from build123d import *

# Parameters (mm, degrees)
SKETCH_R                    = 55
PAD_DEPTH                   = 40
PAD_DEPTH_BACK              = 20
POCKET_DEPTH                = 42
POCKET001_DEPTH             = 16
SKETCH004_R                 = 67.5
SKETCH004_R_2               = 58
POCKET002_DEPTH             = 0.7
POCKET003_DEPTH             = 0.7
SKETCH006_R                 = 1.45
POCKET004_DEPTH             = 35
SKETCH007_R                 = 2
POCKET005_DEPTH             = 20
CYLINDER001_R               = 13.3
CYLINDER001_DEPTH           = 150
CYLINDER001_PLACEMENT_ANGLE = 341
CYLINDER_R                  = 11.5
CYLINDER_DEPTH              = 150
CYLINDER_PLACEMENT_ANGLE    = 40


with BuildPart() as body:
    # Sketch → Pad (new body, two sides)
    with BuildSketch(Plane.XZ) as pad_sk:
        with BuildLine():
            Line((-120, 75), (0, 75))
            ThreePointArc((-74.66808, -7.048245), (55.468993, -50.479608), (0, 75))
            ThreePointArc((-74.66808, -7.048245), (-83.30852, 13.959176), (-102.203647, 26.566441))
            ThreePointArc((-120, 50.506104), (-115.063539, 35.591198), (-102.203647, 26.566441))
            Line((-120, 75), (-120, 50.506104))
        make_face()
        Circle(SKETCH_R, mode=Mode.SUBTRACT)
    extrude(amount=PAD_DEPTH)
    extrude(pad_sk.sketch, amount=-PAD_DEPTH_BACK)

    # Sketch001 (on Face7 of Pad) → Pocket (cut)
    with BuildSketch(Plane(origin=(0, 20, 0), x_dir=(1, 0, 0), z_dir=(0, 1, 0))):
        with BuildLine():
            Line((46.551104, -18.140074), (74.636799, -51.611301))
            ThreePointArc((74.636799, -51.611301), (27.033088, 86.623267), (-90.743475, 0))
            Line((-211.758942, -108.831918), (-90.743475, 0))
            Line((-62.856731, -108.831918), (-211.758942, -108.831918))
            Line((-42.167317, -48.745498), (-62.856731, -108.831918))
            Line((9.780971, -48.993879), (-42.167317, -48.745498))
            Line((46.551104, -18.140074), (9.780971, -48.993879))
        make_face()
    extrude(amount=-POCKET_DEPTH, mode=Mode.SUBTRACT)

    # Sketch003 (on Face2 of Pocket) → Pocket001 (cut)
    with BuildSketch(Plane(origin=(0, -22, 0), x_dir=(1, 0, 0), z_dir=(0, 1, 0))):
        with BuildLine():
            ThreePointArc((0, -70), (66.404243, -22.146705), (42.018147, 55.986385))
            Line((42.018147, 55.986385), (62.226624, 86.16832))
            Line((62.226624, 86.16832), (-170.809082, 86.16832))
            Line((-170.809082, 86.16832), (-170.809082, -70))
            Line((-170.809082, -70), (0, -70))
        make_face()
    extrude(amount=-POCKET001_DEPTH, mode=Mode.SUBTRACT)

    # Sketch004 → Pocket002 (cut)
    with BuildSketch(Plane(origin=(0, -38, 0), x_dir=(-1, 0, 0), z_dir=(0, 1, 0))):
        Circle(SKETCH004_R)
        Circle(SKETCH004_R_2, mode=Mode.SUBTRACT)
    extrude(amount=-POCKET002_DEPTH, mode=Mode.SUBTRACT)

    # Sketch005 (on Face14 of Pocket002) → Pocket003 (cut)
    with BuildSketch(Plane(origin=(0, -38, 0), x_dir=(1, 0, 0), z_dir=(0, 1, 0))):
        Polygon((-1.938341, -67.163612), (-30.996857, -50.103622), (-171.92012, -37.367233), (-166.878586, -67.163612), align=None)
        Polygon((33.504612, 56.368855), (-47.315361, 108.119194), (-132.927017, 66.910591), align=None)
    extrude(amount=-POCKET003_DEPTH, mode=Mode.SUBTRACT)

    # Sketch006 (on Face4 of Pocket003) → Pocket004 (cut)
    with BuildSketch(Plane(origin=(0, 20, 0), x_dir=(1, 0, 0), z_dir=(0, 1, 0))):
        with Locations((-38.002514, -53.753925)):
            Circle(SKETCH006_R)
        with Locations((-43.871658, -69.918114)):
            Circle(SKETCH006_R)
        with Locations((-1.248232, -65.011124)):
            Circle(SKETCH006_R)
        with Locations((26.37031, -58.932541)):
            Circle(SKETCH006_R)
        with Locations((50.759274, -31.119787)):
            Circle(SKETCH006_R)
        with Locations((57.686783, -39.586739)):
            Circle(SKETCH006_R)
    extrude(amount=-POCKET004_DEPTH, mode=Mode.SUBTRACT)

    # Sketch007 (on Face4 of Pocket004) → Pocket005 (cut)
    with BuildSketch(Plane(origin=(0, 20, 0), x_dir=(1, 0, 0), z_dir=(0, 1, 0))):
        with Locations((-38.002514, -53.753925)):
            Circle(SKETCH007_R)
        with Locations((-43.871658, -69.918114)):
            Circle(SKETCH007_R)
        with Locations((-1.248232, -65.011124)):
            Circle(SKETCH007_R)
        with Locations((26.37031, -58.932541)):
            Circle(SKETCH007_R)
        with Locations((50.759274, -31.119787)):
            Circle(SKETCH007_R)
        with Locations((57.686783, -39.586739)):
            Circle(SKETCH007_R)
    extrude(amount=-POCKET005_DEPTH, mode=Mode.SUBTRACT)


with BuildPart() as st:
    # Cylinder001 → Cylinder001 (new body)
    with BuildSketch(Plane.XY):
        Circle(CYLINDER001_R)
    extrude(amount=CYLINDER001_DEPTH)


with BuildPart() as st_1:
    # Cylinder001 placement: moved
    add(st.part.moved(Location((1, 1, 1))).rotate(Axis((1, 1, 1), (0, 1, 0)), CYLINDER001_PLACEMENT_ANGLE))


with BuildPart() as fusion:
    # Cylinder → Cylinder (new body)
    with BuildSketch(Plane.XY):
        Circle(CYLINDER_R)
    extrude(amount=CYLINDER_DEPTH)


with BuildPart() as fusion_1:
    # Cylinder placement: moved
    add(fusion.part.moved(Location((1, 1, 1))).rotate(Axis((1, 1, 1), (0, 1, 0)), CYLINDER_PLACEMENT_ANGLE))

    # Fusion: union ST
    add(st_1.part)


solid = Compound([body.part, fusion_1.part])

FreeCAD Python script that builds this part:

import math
import FreeCAD as App
import Part
import Sketcher
Q = App.Units.Quantity


def add_polygon(sketch, points):
    """Adds a closed chain of lines whose ends are joined by coincident constraints."""
    first, n = sketch.GeometryCount, len(points)
    for a, b in zip(points, points[1:] + points[:1]):
        sketch.addGeometry(Part.LineSegment(App.Vector(*a, 0), App.Vector(*b, 0)), False)
    for i in range(n):
        sketch.addConstraint(Sketcher.Constraint("Coincident", first + i, 2, first + (i + 1) % n, 1))

doc = App.newDocument("Part")
params = doc.addObject("Spreadsheet::Sheet", "Params")
for row, (alias, value) in enumerate([
    ("sketch1_diameter", "110 mm"),
    ("sketch1_radius", "24.999998 mm"),
    ("sketch1_radius2", "75 mm"),
    ("sketch1_width", "120 mm"),
    ("pad1_length", "40 mm"),
    ("pad1_length2", "20 mm"),
    ("sketch2_length", "48 mm"),
    ("pocket1_length", "42 mm"),
    ("sketch3_radius", "70 mm"),
    ("pocket2_length", "16 mm"),
    ("sketch4_diameter", "135 mm"),
    ("sketch4_diameter2", "116 mm"),
    ("pocket3_length", "0.7 mm"),
    ("pocket4_length", "0.7 mm"),
    ("sketch6_diameter", "2.9 mm"),
    ("pocket5_length", "35 mm"),
    ("sketch7_diameter", "4 mm"),
    ("pocket6_length", "20 mm"),
    ("sketch8_diameter", "26.6 mm"),
    ("pad2_length", "150 mm"),
    ("sketch9_diameter", "23 mm"),
    ("pad3_length", "150 mm"),
], start=1):
    params.set(f"A{row}", alias)
    params.set(f"B{row}", "=" + value)
    params.setAlias(f"B{row}", alias)

body = doc.addObject("PartDesign::Body", "Body")

sketch1 = body.newObject("Sketcher::SketchObject", "Sketch")
sketch1.AttachmentSupport = (doc.getObject("XZ_Plane"), [""])
sketch1.MapMode = "FlatFace"
sketch1.addGeometry([
    Part.LineSegment(App.Vector(0, 75, 0), App.Vector(-120, 75, 0)),
    Part.LineSegment(App.Vector(-120, 75, 0), App.Vector(-120, 51, 0)),
    Part.ArcOfCircle(Part.Circle(App.Vector(-95, 51, 0), App.Vector(0, 0, 1), 25), math.radians(180), math.radians(253)),
    Part.ArcOfCircle(Part.Circle(App.Vector(-113, -11, 0), App.Vector(0, 0, 1), 39), math.radians(5), math.radians(73)),
    Part.ArcOfCircle(Part.Circle(App.Vector(0, 0, 0), App.Vector(0, 0, 1), 75), math.radians(-175), math.radians(90)),
    Part.Circle(App.Vector(0, 0, 0), App.Vector(0, 0, 1), 55),
], False)
sketch1.addConstraint([
    Sketcher.Constraint("Coincident", 0, 2, 1, 1),
    Sketcher.Constraint("Tangent", 1, 2, 2, 1),
    Sketcher.Constraint("Tangent", 2, 2, 3, 2),
    Sketcher.Constraint("Tangent", 3, 1, 4, 1),
    Sketcher.Constraint("Tangent", 4, 2, 0, 1),
    Sketcher.Constraint("Horizontal", 0),
    Sketcher.Constraint("Vertical", 1),
    Sketcher.Constraint("Coincident", 4, 3, -1, 1),
    Sketcher.Constraint("Coincident", 5, 3, -1, 1),
    Sketcher.Constraint("Diameter", 5, 110.0),
    Sketcher.Constraint("Radius", 2, 24.999998),
    Sketcher.Constraint("Radius", 4, 75.0),
    Sketcher.Constraint("DistanceX", 0, 2, 0, 1, 120.0),
    Sketcher.Constraint("Radius", 3, 38.923461),
    Sketcher.Constraint("DistanceX", 3, 3, 3, 1, 38.751202),
])
sketch1.setExpression("Constraints[9]", "Params.sketch1_diameter")
sketch1.setExpression("Constraints[10]", "Params.sketch1_radius")
sketch1.setExpression("Constraints[11]", "Params.sketch1_radius2")
sketch1.setExpression("Constraints[12]", "Params.sketch1_width")
pad1 = body.newObject("PartDesign::Pad", "Pad")
pad1.Profile = sketch1
pad1.Type = "TwoLengths"
pad1.setExpression("Length", "Params.pad1_length")
pad1.setExpression("Length2", "Params.pad1_length2")

sketch2 = body.newObject("Sketcher::SketchObject", "Sketch001")
sketch2.AttachmentSupport = (doc.getObject("XZ_Plane"), [""])
sketch2.MapMode = "FlatFace"
sketch2.AttachmentOffset = App.Placement(App.Vector(0, 0, -20), App.Rotation())
sketch2.addGeometry([
    Part.LineSegment(App.Vector(47, 18, 0), App.Vector(75, 52, 0)),
    Part.ArcOfCircle(Part.Circle(App.Vector(0, 0, 0), App.Vector(0, 0, 1), 91), math.radians(180), math.radians(395)),
    Part.LineSegment(App.Vector(-91, 0, 0), App.Vector(-212, 109, 0)),
    Part.LineSegment(App.Vector(-212, 109, 0), App.Vector(-63, 109, 0)),
    Part.LineSegment(App.Vector(-63, 109, 0), App.Vector(-42, 49, 0)),
    Part.LineSegment(App.Vector(-42, 49, 0), App.Vector(10, 49, 0)),
    Part.LineSegment(App.Vector(10, 49, 0), App.Vector(47, 18, 0)),
], False)
sketch2.addConstraint([
    Sketcher.Constraint("Coincident", 0, 2, 1, 2),
    Sketcher.Constraint("Coincident", 1, 1, 2, 1),
    Sketcher.Constraint("Coincident", 2, 2, 3, 1),
    Sketcher.Constraint("Coincident", 3, 2, 4, 1),
    Sketcher.Constraint("Coincident", 4, 2, 5, 1),
    Sketcher.Constraint("Coincident", 5, 2, 6, 1),
    Sketcher.Constraint("Coincident", 6, 2, 0, 1),
    Sketcher.Constraint("Horizontal", 3),
    Sketcher.Constraint("Coincident", 1, 3, -1, 1),
    Sketcher.Constraint("PointOnObject", 1, 1, -1),
    Sketcher.Constraint("Perpendicular", 0, 6),
    Sketcher.Constraint("Angle", 0, Q("49.999999 deg")),
    Sketcher.Constraint("Angle", 4, Q("-71 deg")),
    Sketcher.Constraint("Distance", 6, 48.0),
    Sketcher.Constraint("Radius", 1, 90.743475),
    Sketcher.Constraint("DistanceX", 3, 1, 3, 2, 148.902211),
    Sketcher.Constraint("DistanceX", -1, 1, 0, 2, 74.636799),
    Sketcher.Constraint("DistanceY", 1, 3, 4, 2, 48.745498),
    Sketcher.Constraint("Distance", 4, 63.548641),
    Sketcher.Constraint("Distance", 5, 51.948882),
    Sketcher.Constraint("DistanceX", 2, 2, -1, 1, 211.758942),
])
sketch2.setExpression("Constraints[13]", "Params.sketch2_length")
pocket1 = body.newObject("PartDesign::Pocket", "Pocket")
pocket1.Profile = sketch2
pocket1.setExpression("Length", "Params.pocket1_length")
pocket1.Reversed = True

sketch3 = body.newObject("Sketcher::SketchObject", "Sketch002")
sketch3.AttachmentSupport = (doc.getObject("XZ_Plane"), [""])
sketch3.MapMode = "FlatFace"
sketch3.AttachmentOffset = App.Placement(App.Vector(0, 0, 22), App.Rotation())
sketch3.addGeometry([
    Part.ArcOfCircle(Part.Circle(App.Vector(0, 0, 0), App.Vector(0, 0, 1), 70), math.radians(-53), math.radians(90)),
    Part.LineSegment(App.Vector(42, -56, 0), App.Vector(62, -86, 0)),
    Part.LineSegment(App.Vector(62, -86, 0), App.Vector(-171, -86, 0)),
    Part.LineSegment(App.Vector(-171, -86, 0), App.Vector(-171, 70, 0)),
    Part.LineSegment(App.Vector(-171, 70, 0), App.Vector(0, 70, 0)),
], False)
sketch3.addConstraint([
    Sketcher.Constraint("Coincident", 0, 1, 1, 1),
    Sketcher.Constraint("Coincident", 1, 2, 2, 1),
    Sketcher.Constraint("Coincident", 2, 2, 3, 1),
    Sketcher.Constraint("Coincident", 3, 2, 4, 1),
    Sketcher.Constraint("Tangent", 4, 2, 0, 2),
    Sketcher.Constraint("Horizontal", 2),
    Sketcher.Constraint("Vertical", 3),
    Sketcher.Constraint("Horizontal", 4),
    Sketcher.Constraint("Coincident", 0, 3, -1, 1),
    Sketcher.Constraint("Radius", 0, 70.0),
    Sketcher.Constraint("DistanceX", 4, 1, 4, 2, 170.809082),
    Sketcher.Constraint("DistanceY", 3, 1, 3, 2, 156.16832),
    Sketcher.Constraint("DistanceX", 2, 2, 2, 1, 233.035706),
    Sketcher.Constraint("DistanceX", 2, 2, 0, 1, 212.827229),
])
sketch3.setExpression("Constraints[9]", "Params.sketch3_radius")
pocket2 = body.newObject("PartDesign::Pocket", "Pocket001")
pocket2.Profile = sketch3
pocket2.setExpression("Length", "Params.pocket2_length")
pocket2.Reversed = True

sketch4 = body.newObject("Sketcher::SketchObject", "Sketch003")
sketch4.AttachmentSupport = (doc.getObject("XZ_Plane"), [""])
sketch4.MapMode = "FlatFace"
sketch4.AttachmentOffset = App.Placement(App.Vector(0, 0, 38), App.Rotation())
sketch4.addGeometry([
    Part.Circle(App.Vector(0, 0, 0), App.Vector(0, 0, 1), 68),
    Part.Circle(App.Vector(0, 0, 0), App.Vector(0, 0, 1), 58),
], False)
sketch4.addConstraint([
    Sketcher.Constraint("Coincident", 0, 3, -1, 1),
    Sketcher.Constraint("Coincident", 1, 3, -1, 1),
    Sketcher.Constraint("Diameter", 0, 135.0),
    Sketcher.Constraint("Diameter", 1, 116.0),
])
sketch4.setExpression("Constraints[2]", "Params.sketch4_diameter")
sketch4.setExpression("Constraints[3]", "Params.sketch4_diameter2")
pocket3 = body.newObject("PartDesign::Pocket", "Pocket002")
pocket3.Profile = sketch4
pocket3.setExpression("Length", "Params.pocket3_length")
pocket3.Reversed = True

sketch5 = body.newObject("Sketcher::SketchObject", "Sketch004")
sketch5.AttachmentSupport = (doc.getObject("XZ_Plane"), [""])
sketch5.MapMode = "FlatFace"
sketch5.AttachmentOffset = App.Placement(App.Vector(0, 0, 38), App.Rotation())
add_polygon(sketch5, [(-2, 67), (-31, 50), (-172, 37), (-167, 67)])
add_polygon(sketch5, [(34, -56), (-47, -108), (-133, -67)])
sketch5.addConstraint([
    Sketcher.Constraint("Horizontal", 3),
    Sketcher.Constraint("Distance", 0, 33.6963),
    Sketcher.Constraint("Distance", 1, 141.497638),
    Sketcher.Constraint("Distance", 2, 30.219882),
    Sketcher.Constraint("Distance", 5, 95.013181),
    Sketcher.Constraint("Distance", 6, 166.76515),
    Sketcher.Constraint("DistanceX", 3, 1, 3, 2, 164.940245),
    Sketcher.Constraint("DistanceX", 1, 2, -1, 1, 171.92012),
    Sketcher.Constraint("DistanceY", -1, 1, 2, 2, 67.163612),
    Sketcher.Constraint("DistanceX", 3, 2, -1, 1, 1.938341),
    Sketcher.Constraint("DistanceX", 4, 2, -1, 1, 47.315361),
    Sketcher.Constraint("DistanceY", 5, 2, -1, 1, 66.910591),
    Sketcher.Constraint("DistanceX", 2, 2, 5, 2, 33.951569),
    Sketcher.Constraint("DistanceY", 4, 2, 6, 2, 51.750339),
])
pocket4 = body.newObject("PartDesign::Pocket", "Pocket003")
pocket4.Profile = sketch5
pocket4.setExpression("Length", "Params.pocket4_length")
pocket4.Reversed = True

sketch6 = body.newObject("Sketcher::SketchObject", "Sketch005")
sketch6.AttachmentSupport = (doc.getObject("XZ_Plane"), [""])
sketch6.MapMode = "FlatFace"
sketch6.AttachmentOffset = App.Placement(App.Vector(0, 0, -20), App.Rotation())
sketch6.addGeometry([
    Part.Circle(App.Vector(-38, 53.8, 0), App.Vector(0, 0, 1), 1.4),
    Part.Circle(App.Vector(-43.9, 69.9, 0), App.Vector(0, 0, 1), 1.4),
    Part.Circle(App.Vector(-1.2, 65, 0), App.Vector(0, 0, 1), 1.4),
    Part.Circle(App.Vector(26.4, 58.9, 0), App.Vector(0, 0, 1), 1.4),
    Part.Circle(App.Vector(50.8, 31.1, 0), App.Vector(0, 0, 1), 1.4),
    Part.Circle(App.Vector(57.7, 39.6, 0), App.Vector(0, 0, 1), 1.4),
], False)
sketch6.addConstraint([
    Sketcher.Constraint("Equal", 0, 1),
    Sketcher.Constraint("Equal", 1, 2),
    Sketcher.Constraint("Equal", 2, 3),
    Sketcher.Constraint("Equal", 3, 4),
    Sketcher.Constraint("Equal", 4, 5),
    Sketcher.Constraint("Diameter", 0, 2.9),
    Sketcher.Constraint("DistanceY", 0, 3, 2, 3, 11.257199),
    Sketcher.Constraint("DistanceY", 5, 3, 3, 3, 19.345802),
    Sketcher.Constraint("DistanceX", -1, 1, 3, 3, 26.37031),
    Sketcher.Constraint("DistanceY", -1, 1, 3, 3, 58.932541),
    Sketcher.Constraint("DistanceY", 0, 3, 1, 3, 16.164189),
    Sketcher.Constraint("DistanceX", 0, 3, 2, 3, 36.754282),
    Sketcher.Constraint("DistanceX", 1, 3, 3, 3, 70.241968),
    Sketcher.Constraint("DistanceY", 4, 3, 0, 3, 22.634138),
    Sketcher.Constraint("DistanceX", 1, 3, 4, 3, 94.630932),
    Sketcher.Constraint("DistanceX", 4, 3, 5, 3, 6.927509),
    Sketcher.Constraint("DistanceX", 0, 3, -1, 1, 38.002514),
    Sketcher.Constraint("DistanceY", -1, 1, 0, 3, 53.753925),
])
sketch6.setExpression("Constraints[5]", "Params.sketch6_diameter")
pocket5 = body.newObject("PartDesign::Pocket", "Pocket004")
pocket5.Profile = sketch6
pocket5.setExpression("Length", "Params.pocket5_length")
pocket5.Reversed = True

sketch7 = body.newObject("Sketcher::SketchObject", "Sketch006")
sketch7.AttachmentSupport = (doc.getObject("XZ_Plane"), [""])
sketch7.MapMode = "FlatFace"
sketch7.AttachmentOffset = App.Placement(App.Vector(0, 0, -20), App.Rotation())
sketch7.addGeometry([
    Part.Circle(App.Vector(-38, 53.8, 0), App.Vector(0, 0, 1), 2),
    Part.Circle(App.Vector(-43.9, 69.9, 0), App.Vector(0, 0, 1), 2),
    Part.Circle(App.Vector(-1.2, 65, 0), App.Vector(0, 0, 1), 2),
    Part.Circle(App.Vector(26.4, 58.9, 0), App.Vector(0, 0, 1), 2),
    Part.Circle(App.Vector(50.8, 31.1, 0), App.Vector(0, 0, 1), 2),
    Part.Circle(App.Vector(57.7, 39.6, 0), App.Vector(0, 0, 1), 2),
], False)
sketch7.addConstraint([
    Sketcher.Constraint("Equal", 0, 1),
    Sketcher.Constraint("Equal", 1, 2),
    Sketcher.Constraint("Equal", 2, 3),
    Sketcher.Constraint("Equal", 3, 4),
    Sketcher.Constraint("Equal", 4, 5),
    Sketcher.Constraint("Diameter", 0, 4.0),
    Sketcher.Constraint("DistanceY", 0, 3, 2, 3, 11.257199),
    Sketcher.Constraint("DistanceY", 5, 3, 3, 3, 19.345802),
    Sketcher.Constraint("DistanceX", -1, 1, 3, 3, 26.37031),
    Sketcher.Constraint("DistanceY", -1, 1, 3, 3, 58.932541),
    Sketcher.Constraint("DistanceY", 0, 3, 1, 3, 16.164189),
    Sketcher.Constraint("DistanceX", 0, 3, 2, 3, 36.754282),
    Sketcher.Constraint("DistanceX", 1, 3, 3, 3, 70.241968),
    Sketcher.Constraint("DistanceY", 4, 3, 0, 3, 22.634138),
    Sketcher.Constraint("DistanceX", 1, 3, 4, 3, 94.630932),
    Sketcher.Constraint("DistanceX", 4, 3, 5, 3, 6.927509),
    Sketcher.Constraint("DistanceX", 0, 3, -1, 1, 38.002514),
    Sketcher.Constraint("DistanceY", -1, 1, 0, 3, 53.753925),
])
sketch7.setExpression("Constraints[5]", "Params.sketch7_diameter")
pocket6 = body.newObject("PartDesign::Pocket", "Pocket005")
pocket6.Profile = sketch7
pocket6.setExpression("Length", "Params.pocket6_length")
pocket6.Reversed = True
body2 = doc.addObject("PartDesign::Body", "Body001")

sketch8 = body2.newObject("Sketcher::SketchObject", "Sketch007")
sketch8.AttachmentSupport = (doc.getObject("XY_Plane001"), [""])
sketch8.MapMode = "FlatFace"
sketch8.addGeometry(Part.Circle(App.Vector(0, 0, 0), App.Vector(0, 0, 1), 13), False)
sketch8.addConstraint([
    Sketcher.Constraint("Coincident", 0, 3, -1, 1),
    Sketcher.Constraint("Diameter", 0, 26.6),
])
sketch8.setExpression("Constraints[1]", "Params.sketch8_diameter")
pad2 = body2.newObject("PartDesign::Pad", "Pad001")
pad2.Profile = sketch8
pad2.setExpression("Length", "Params.pad2_length")
body3 = doc.addObject("PartDesign::Body", "Body002")
doc.recompute()

body2.Placement = App.Placement(App.Vector(1, 1, 1), App.Rotation(App.Vector(0, 1, 0), 341))
boolean = body3.newObject("PartDesign::Boolean", "Boolean")
boolean.Type = "Fuse"
boolean.addObjects([body2])
body4 = doc.addObject("PartDesign::Body", "Body003")

sketch9 = body4.newObject("Sketcher::SketchObject", "Sketch008")
sketch9.AttachmentSupport = (doc.getObject("XY_Plane003"), [""])
sketch9.MapMode = "FlatFace"
sketch9.addGeometry(Part.Circle(App.Vector(0, 0, 0), App.Vector(0, 0, 1), 12), False)
sketch9.addConstraint([
    Sketcher.Constraint("Coincident", 0, 3, -1, 1),
    Sketcher.Constraint("Diameter", 0, 23.0),
])
sketch9.setExpression("Constraints[1]", "Params.sketch9_diameter")
pad3 = body4.newObject("PartDesign::Pad", "Pad002")
pad3.Profile = sketch9
pad3.setExpression("Length", "Params.pad3_length")
body5 = doc.addObject("PartDesign::Body", "Body004")
doc.recompute()

body4.Placement = App.Placement(App.Vector(1, 1, 1), App.Rotation(App.Vector(0, 1, 0), 40))
boolean2 = body5.newObject("PartDesign::Boolean", "Boolean001")
boolean2.Type = "Fuse"
boolean2.addObjects([body4])
doc.recompute()

boolean3 = body5.newObject("PartDesign::Boolean", "Boolean002")
boolean3.Type = "Fuse"
boolean3.addObjects([body3])

doc.recompute()
